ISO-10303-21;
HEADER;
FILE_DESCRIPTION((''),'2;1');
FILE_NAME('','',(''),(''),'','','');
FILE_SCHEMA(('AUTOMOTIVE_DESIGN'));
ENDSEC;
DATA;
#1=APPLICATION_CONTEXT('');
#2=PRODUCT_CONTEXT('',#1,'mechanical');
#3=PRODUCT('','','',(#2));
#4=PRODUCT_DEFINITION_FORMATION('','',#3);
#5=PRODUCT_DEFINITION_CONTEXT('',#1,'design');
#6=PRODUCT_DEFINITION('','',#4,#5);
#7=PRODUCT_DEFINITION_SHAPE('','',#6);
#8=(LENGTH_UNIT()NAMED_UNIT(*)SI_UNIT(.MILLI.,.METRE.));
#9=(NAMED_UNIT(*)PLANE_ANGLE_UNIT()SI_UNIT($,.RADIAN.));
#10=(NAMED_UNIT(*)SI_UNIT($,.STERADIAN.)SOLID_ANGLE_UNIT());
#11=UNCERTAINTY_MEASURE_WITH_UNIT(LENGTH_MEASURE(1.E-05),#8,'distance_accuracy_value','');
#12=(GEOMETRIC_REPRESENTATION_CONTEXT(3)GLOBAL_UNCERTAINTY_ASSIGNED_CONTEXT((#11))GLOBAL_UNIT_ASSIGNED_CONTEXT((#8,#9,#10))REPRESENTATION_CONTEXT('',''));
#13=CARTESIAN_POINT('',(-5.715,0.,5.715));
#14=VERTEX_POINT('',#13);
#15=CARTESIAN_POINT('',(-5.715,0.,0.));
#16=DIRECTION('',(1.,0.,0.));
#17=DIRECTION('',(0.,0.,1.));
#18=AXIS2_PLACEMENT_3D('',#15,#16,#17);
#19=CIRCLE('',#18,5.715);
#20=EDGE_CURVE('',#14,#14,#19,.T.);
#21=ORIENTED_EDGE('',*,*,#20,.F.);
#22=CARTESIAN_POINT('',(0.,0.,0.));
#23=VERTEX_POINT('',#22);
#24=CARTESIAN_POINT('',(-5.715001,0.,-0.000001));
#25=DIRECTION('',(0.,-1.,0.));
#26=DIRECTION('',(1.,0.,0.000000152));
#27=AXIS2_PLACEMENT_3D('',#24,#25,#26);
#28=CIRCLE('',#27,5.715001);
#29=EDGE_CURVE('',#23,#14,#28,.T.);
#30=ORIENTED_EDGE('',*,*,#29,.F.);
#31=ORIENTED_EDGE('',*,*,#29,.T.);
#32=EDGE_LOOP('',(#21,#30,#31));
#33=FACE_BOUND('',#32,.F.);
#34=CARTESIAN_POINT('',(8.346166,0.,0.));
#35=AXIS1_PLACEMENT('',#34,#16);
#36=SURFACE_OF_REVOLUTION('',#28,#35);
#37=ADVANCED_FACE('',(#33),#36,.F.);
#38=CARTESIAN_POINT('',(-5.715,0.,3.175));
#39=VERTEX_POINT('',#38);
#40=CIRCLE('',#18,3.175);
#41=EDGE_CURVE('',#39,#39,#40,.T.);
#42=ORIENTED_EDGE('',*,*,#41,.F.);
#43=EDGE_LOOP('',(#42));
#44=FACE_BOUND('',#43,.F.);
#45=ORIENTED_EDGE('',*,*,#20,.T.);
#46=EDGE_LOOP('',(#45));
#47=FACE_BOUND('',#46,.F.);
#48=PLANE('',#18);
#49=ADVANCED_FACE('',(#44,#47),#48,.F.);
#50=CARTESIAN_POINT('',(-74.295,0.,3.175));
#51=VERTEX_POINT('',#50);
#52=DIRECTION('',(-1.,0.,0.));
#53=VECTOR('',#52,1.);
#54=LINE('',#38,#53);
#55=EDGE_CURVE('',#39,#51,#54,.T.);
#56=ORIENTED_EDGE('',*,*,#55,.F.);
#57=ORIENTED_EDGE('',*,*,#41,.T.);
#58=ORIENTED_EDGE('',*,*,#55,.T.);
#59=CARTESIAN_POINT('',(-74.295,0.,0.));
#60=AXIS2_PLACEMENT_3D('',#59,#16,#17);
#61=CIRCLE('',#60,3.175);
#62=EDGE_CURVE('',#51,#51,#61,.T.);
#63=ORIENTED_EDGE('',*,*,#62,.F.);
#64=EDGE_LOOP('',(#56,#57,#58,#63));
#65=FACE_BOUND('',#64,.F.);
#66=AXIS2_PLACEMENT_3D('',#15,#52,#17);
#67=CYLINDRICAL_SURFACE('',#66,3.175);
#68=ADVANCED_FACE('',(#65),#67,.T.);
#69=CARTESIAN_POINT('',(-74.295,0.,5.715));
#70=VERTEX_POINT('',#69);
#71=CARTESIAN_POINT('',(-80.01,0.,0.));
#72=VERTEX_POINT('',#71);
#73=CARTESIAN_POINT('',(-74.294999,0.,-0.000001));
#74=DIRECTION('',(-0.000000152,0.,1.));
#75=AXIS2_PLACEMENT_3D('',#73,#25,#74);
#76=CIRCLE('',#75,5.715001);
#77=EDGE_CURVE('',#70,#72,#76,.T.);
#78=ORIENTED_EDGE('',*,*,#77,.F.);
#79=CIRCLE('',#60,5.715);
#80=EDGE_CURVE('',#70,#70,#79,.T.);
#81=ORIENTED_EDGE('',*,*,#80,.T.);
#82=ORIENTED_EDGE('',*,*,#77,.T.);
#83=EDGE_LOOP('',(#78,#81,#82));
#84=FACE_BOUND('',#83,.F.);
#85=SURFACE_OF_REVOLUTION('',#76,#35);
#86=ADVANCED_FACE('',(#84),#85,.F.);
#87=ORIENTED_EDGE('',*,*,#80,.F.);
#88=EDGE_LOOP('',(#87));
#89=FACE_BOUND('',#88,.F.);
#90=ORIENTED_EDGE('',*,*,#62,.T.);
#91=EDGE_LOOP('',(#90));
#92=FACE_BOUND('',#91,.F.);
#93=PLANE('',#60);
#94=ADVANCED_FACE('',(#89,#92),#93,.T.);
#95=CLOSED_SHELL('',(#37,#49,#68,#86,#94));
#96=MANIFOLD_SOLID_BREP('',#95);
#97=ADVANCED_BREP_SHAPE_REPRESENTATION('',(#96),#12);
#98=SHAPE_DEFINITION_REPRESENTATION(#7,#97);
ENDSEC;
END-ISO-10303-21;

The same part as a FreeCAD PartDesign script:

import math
import FreeCAD as App
import Part
import Sketcher

V = App.Vector
Q = App.Units.Quantity

doc = App.newDocument("Part")
body = doc.addObject("PartDesign::Body", "Body")

# Sketch on XZ plane
sketch1 = body.newObject("Sketcher::SketchObject", "Sketch")
sketch1.AttachmentSupport = (doc.getObject("XZ_Plane"), [""])
sketch1.MapMode = "FlatFace"
sketch1.addGeometry([
    Part.LineSegment(V(-74.3, 3.2, 0), V(-74.3, 5.7, 0)),  # 0
    Part.ArcOfCircle(Part.Circle(V(-74.3, 0, 0), V(0, 0, 1), 5.7), math.radians(90), math.radians(180)),  # 1
    Part.LineSegment(V(-80, 0, 0), V(0, 0, 0)),  # 2
    Part.ArcOfCircle(Part.Circle(V(-5.7, 0, 0), V(0, 0, 1), 5.7), math.radians(0), math.radians(90)),  # 3
    Part.LineSegment(V(-5.7, 5.7, 0), V(-5.7, 3.2, 0)),  # 4
    Part.LineSegment(V(-5.7, 3.2, 0), V(-74.3, 3.2, 0)),  # 5
], False)
sketch1.addConstraint([
    Sketcher.Constraint("Coincident", 0, 2, 1, 1),
    Sketcher.Constraint("Coincident", 1, 2, 2, 1),
    Sketcher.Constraint("Coincident", 2, 2, 3, 1),
    Sketcher.Constraint("Coincident", 3, 2, 4, 1),
    Sketcher.Constraint("Coincident", 4, 2, 5, 1),
    Sketcher.Constraint("Coincident", 5, 2, 0, 1),
    Sketcher.Constraint("Vertical", 0),
    Sketcher.Constraint("Horizontal", 2),
    Sketcher.Constraint("Vertical", 4),
    Sketcher.Constraint("Horizontal", 5),
    Sketcher.Constraint("Coincident", 2, 2, -1, 1),
    Sketcher.Constraint("Equal", 1, 3),
    Sketcher.Constraint("PointOnObject", 1, 3, -1),
    Sketcher.Constraint("PointOnObject", 3, 3, -1),
    Sketcher.Constraint("Vertical", 1, 3, 0, 2),
    Sketcher.Constraint("DistanceX", 5, 2, 5, 1, Q("2.7 in")),
    Sketcher.Constraint("DistanceY", 0, 1, 0, 2, Q("0.1 in")),
    Sketcher.Constraint("Radius", 1, Q("0.225 in")),
    Sketcher.Constraint("DistanceX", 2, 1, 2, 2, Q("3.15 in")),
])
revolution = body.newObject("PartDesign::Revolution", "Revolution")
revolution.Profile = sketch1
revolution.ReferenceAxis = (sketch1, ["H_Axis"])
revolution.Angle = 360

doc.recompute()
